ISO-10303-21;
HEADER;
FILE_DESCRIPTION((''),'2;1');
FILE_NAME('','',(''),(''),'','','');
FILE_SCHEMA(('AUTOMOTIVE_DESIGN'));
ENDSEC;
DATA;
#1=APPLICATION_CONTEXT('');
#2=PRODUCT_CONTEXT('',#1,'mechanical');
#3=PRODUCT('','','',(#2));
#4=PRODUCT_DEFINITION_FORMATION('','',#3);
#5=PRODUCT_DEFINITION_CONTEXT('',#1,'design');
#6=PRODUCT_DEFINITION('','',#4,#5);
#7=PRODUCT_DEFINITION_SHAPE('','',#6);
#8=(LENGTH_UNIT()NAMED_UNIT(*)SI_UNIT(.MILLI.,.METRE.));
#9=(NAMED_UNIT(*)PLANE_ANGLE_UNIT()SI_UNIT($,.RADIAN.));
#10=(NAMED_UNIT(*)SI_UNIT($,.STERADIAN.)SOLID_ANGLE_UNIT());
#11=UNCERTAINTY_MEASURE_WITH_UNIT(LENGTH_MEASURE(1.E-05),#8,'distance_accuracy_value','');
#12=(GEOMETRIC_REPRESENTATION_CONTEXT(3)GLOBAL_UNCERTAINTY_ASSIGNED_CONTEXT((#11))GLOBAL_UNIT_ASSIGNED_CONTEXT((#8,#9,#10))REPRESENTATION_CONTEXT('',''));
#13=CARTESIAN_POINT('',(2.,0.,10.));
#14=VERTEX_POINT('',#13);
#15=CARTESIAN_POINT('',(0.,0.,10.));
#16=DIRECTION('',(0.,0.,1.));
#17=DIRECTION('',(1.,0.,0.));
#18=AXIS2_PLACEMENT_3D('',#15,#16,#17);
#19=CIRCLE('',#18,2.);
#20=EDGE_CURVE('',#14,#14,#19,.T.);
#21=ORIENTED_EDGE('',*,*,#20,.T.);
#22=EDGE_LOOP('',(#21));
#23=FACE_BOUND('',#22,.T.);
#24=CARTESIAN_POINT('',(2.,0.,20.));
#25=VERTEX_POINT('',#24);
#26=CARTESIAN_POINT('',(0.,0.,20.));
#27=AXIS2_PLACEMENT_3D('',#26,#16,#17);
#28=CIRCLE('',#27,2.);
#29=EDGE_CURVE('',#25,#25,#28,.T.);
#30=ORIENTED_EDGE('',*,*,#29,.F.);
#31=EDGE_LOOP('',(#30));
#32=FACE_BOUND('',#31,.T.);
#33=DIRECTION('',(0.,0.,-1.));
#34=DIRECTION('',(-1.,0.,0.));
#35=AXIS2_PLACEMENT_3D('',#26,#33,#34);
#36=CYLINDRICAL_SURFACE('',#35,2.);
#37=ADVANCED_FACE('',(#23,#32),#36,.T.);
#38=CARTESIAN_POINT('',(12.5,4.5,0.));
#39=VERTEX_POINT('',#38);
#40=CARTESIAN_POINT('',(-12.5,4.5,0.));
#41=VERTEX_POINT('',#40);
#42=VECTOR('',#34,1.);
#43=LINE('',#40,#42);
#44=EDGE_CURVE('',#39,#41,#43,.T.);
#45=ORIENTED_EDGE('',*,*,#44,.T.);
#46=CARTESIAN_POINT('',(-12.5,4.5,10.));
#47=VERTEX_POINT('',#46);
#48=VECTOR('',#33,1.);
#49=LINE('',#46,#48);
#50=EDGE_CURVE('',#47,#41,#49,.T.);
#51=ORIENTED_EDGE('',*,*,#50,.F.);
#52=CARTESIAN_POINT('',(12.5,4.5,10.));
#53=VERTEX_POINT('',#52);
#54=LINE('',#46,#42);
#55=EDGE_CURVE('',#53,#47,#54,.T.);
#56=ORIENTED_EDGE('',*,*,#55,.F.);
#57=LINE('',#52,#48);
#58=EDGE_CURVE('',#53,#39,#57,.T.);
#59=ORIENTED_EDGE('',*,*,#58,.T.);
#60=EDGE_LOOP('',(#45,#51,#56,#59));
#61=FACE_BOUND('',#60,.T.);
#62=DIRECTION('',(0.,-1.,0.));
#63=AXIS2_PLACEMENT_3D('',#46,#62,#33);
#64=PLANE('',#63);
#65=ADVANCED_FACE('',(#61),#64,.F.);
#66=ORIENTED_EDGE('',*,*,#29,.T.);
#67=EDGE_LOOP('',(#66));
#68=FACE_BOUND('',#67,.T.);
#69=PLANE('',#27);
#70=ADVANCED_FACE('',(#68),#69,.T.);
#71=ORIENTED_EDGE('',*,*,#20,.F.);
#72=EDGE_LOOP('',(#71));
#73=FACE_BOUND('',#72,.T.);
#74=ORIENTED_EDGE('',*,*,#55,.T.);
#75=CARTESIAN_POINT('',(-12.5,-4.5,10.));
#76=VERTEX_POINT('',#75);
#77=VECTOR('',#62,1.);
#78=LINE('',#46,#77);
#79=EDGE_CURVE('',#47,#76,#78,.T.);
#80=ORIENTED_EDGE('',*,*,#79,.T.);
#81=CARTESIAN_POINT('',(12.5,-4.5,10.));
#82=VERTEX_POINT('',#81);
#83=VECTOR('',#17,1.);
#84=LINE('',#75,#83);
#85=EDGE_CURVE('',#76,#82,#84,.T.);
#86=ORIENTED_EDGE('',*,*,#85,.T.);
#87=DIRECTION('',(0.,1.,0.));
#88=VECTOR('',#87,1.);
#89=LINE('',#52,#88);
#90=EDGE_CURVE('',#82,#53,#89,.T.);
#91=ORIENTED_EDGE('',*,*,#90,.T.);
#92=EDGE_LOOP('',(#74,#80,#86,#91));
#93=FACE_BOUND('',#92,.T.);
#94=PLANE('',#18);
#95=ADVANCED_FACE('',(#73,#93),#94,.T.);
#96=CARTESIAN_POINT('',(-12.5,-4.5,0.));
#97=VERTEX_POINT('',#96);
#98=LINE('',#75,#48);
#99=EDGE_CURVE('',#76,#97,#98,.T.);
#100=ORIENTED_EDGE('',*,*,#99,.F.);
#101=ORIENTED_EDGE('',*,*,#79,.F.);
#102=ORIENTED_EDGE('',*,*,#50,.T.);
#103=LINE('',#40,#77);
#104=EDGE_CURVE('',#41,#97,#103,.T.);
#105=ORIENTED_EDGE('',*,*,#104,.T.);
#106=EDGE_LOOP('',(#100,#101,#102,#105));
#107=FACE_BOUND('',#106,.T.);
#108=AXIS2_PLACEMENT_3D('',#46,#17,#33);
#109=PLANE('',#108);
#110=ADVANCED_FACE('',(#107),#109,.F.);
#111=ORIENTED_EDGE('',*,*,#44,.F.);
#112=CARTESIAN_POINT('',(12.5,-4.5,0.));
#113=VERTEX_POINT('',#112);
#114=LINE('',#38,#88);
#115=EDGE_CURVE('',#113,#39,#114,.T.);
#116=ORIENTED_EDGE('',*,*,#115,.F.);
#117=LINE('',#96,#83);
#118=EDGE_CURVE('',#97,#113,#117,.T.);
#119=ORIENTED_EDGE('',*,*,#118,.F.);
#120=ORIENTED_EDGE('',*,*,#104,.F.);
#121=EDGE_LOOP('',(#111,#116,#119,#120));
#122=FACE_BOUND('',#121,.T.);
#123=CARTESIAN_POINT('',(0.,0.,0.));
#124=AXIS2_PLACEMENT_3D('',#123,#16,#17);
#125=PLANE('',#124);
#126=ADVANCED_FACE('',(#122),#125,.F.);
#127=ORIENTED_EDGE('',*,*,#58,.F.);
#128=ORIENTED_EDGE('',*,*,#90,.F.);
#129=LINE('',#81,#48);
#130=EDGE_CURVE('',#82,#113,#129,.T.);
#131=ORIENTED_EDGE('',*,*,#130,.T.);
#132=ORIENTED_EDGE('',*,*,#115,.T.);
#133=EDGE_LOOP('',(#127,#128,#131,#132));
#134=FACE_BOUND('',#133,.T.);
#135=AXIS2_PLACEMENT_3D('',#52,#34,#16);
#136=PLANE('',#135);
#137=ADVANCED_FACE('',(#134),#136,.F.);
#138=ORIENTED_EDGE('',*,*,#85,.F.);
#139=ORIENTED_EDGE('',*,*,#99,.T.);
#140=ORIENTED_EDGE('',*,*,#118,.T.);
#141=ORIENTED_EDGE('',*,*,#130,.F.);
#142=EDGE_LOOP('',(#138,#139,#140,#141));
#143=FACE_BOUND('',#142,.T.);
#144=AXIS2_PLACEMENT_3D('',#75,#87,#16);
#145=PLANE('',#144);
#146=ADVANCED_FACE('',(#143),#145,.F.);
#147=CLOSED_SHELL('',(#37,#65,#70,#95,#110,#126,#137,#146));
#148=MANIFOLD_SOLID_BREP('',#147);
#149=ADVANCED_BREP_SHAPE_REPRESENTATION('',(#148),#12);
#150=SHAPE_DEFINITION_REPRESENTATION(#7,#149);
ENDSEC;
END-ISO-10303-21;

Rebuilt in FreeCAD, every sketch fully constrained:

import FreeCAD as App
import Part
import Sketcher
from FreeCAD import Vector


def add_polygon(sketch, points):
    """Adds a closed chain of lines whose ends are joined by coincident constraints."""
    first, n = sketch.GeometryCount, len(points)
    for a, b in zip(points, points[1:] + points[:1]):
        sketch.addGeometry(Part.LineSegment(App.Vector(*a, 0), App.Vector(*b, 0)), False)
    for i in range(n):
        sketch.addConstraint(Sketcher.Constraint("Coincident", first + i, 2, first + (i + 1) % n, 1))

doc = App.newDocument("Part")
body = doc.addObject("PartDesign::Body", "Body")

# Sketch on XY plane
sketch1 = body.newObject("Sketcher::SketchObject", "Sketch")
sketch1.AttachmentSupport = (doc.getObject("XY_Plane"), [""])
sketch1.MapMode = "FlatFace"
add_polygon(sketch1, [(-12, 4), (-12, -4), (12, -4), (12, 4)])  # lines 0-3
sketch1.addConstraint([
    Sketcher.Constraint("Vertical", 0),
    Sketcher.Constraint("Horizontal", 1),
    Sketcher.Constraint("Vertical", 2),
    Sketcher.Constraint("Horizontal", 3),
    Sketcher.Constraint("Symmetric", 0, 2, 2, 2, -1, 1),
    Sketcher.Constraint("DistanceX", 1, 1, 1, 2, 25.0),
    Sketcher.Constraint("DistanceY", 0, 2, 0, 1, 9.0),
])
pad1 = body.newObject("PartDesign::Pad", "Pad")
pad1.Profile = sketch1
pad1.Length = 10

# Sketch on XY plane
sketch2 = body.newObject("Sketcher::SketchObject", "Sketch001")
sketch2.AttachmentSupport = (doc.getObject("XY_Plane"), [""])
sketch2.MapMode = "FlatFace"
sketch2.AttachmentOffset = App.Placement(Vector(0, 0, 10), App.Rotation())
sketch2.addGeometry(Part.Circle(Vector(0, 0, 0), Vector(0, 0, 1), 2), False)
sketch2.addConstraint([
    Sketcher.Constraint("Coincident", 0, 3, -1, 1),
    Sketcher.Constraint("Diameter", 0, 4.0),
])
pad2 = body.newObject("PartDesign::Pad", "Pad001")
pad2.Profile = sketch2
pad2.Length = 10

doc.recompute()
